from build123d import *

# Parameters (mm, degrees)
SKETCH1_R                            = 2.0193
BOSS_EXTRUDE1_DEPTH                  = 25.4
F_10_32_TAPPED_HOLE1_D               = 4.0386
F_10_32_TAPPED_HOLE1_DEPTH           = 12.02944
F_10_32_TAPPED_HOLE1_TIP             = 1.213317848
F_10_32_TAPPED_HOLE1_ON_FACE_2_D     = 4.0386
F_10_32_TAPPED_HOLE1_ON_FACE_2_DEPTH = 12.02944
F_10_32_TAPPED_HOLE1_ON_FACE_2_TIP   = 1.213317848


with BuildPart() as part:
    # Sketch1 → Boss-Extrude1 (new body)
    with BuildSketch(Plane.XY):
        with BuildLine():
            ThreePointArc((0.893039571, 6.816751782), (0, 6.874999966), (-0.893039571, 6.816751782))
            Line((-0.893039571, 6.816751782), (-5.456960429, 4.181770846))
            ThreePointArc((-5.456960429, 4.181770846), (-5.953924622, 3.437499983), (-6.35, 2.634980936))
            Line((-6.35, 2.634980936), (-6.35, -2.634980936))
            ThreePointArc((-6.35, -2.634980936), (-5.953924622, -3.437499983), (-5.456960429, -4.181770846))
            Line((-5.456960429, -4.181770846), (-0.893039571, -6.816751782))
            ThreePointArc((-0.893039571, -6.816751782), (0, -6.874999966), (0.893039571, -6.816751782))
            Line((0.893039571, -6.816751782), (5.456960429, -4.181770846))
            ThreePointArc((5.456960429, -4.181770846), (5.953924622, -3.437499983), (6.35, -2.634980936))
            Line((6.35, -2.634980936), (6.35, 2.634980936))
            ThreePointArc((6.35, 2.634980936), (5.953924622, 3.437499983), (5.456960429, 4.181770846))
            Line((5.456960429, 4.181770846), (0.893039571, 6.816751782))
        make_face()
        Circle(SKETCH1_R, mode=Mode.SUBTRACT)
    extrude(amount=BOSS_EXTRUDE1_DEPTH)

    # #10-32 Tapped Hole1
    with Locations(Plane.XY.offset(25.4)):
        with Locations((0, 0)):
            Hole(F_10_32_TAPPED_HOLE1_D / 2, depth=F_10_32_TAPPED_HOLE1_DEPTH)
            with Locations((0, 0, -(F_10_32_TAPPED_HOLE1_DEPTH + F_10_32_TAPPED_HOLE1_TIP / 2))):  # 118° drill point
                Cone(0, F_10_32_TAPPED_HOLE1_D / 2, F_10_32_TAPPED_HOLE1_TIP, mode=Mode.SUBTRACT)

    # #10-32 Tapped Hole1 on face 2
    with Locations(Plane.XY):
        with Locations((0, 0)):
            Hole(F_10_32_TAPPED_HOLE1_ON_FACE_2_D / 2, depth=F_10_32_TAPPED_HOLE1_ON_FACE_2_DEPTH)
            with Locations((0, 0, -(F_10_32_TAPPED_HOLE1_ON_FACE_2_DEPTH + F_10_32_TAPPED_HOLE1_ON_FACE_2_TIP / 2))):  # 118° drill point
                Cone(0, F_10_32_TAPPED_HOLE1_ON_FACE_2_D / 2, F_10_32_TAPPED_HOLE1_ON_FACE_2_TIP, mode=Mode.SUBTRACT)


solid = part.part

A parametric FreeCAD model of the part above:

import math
import FreeCAD as App
import Part
import Sketcher

V = App.Vector
Q = App.Units.Quantity

doc = App.newDocument("Part")
body = doc.addObject("PartDesign::Body", "Body")

# Sketch on XY plane
sketch1 = body.newObject("Sketcher::SketchObject", "Sketch")
sketch1.AttachmentSupport = (doc.getObject("XY_Plane"), [""])
sketch1.MapMode = "FlatFace"
sketch1.addGeometry(Part.ArcOfCircle(Part.Circle(V(0, 0, 0), V(0, 0, 1), 6.9), math.radians(82.54), math.radians(97.46)), False)
sketch1.addGeometry(Part.LineSegment(V(-0.9, 6.8, 0), V(-5.5, 4.2, 0)), False)
sketch1.addGeometry(Part.ArcOfCircle(Part.Circle(V(0, 0, 0), V(0, 0, 1), 6.9), math.radians(142.54), math.radians(157.46)), False)
sketch1.addGeometry(Part.LineSegment(V(-6.3, 2.6, 0), V(-6.3, -2.6, 0)), False)
sketch1.addGeometry(Part.ArcOfCircle(Part.Circle(V(0, 0, 0), V(0, 0, 1), 6.9), math.radians(-157.46), math.radians(-142.54)), False)
sketch1.addGeometry(Part.LineSegment(V(-5.5, -4.2, 0), V(-0.9, -6.8, 0)), False)
sketch1.addGeometry(Part.ArcOfCircle(Part.Circle(V(0, 0, 0), V(0, 0, 1), 6.9), math.radians(-97.46), math.radians(-82.54)), False)
sketch1.addGeometry(Part.LineSegment(V(0.9, -6.8, 0), V(5.5, -4.2, 0)), False)
sketch1.addGeometry(Part.ArcOfCircle(Part.Circle(V(0, 0, 0), V(0, 0, 1), 6.9), math.radians(-37.46), math.radians(-22.54)), False)
sketch1.addGeometry(Part.LineSegment(V(6.3, -2.6, 0), V(6.3, 2.6, 0)), False)
sketch1.addGeometry(Part.ArcOfCircle(Part.Circle(V(0, 0, 0), V(0, 0, 1), 6.9), math.radians(22.54), math.radians(37.46)), False)
sketch1.addGeometry(Part.LineSegment(V(5.5, 4.2, 0), V(0.9, 6.8, 0)), False)
sketch1.addGeometry(Part.Circle(V(0, 0, 0), V(0, 0, 1), 2), False)
sketch1.addConstraint(Sketcher.Constraint("Coincident", 0, 2, 1, 1))
sketch1.addConstraint(Sketcher.Constraint("Coincident", 1, 2, 2, 1))
sketch1.addConstraint(Sketcher.Constraint("Coincident", 2, 2, 3, 1))
sketch1.addConstraint(Sketcher.Constraint("Coincident", 3, 2, 4, 1))
sketch1.addConstraint(Sketcher.Constraint("Coincident", 4, 2, 5, 1))
sketch1.addConstraint(Sketcher.Constraint("Coincident", 5, 2, 6, 1))
sketch1.addConstraint(Sketcher.Constraint("Coincident", 6, 2, 7, 1))
sketch1.addConstraint(Sketcher.Constraint("Coincident", 7, 2, 8, 1))
sketch1.addConstraint(Sketcher.Constraint("Coincident", 8, 2, 9, 1))
sketch1.addConstraint(Sketcher.Constraint("Coincident", 9, 2, 10, 1))
sketch1.addConstraint(Sketcher.Constraint("Coincident", 10, 2, 11, 1))
sketch1.addConstraint(Sketcher.Constraint("Coincident", 11, 2, 0, 1))
sketch1.addConstraint(Sketcher.Constraint("Vertical", 3))
sketch1.addConstraint(Sketcher.Constraint("Vertical", 9))
sketch1.addConstraint(Sketcher.Constraint("Coincident", 0, 3, -1, 1))
sketch1.addConstraint(Sketcher.Constraint("Coincident", 2, 3, -1, 1))
sketch1.addConstraint(Sketcher.Constraint("Coincident", 4, 3, -1, 1))
sketch1.addConstraint(Sketcher.Constraint("Coincident", 6, 3, -1, 1))
sketch1.addConstraint(Sketcher.Constraint("Coincident", 8, 3, -1, 1))
sketch1.addConstraint(Sketcher.Constraint("Coincident", 10, 3, -1, 1))
sketch1.addConstraint(Sketcher.Constraint("Coincident", 12, 3, -1, 1))
sketch1.addConstraint(Sketcher.Constraint("Equal", 0, 2))
sketch1.addConstraint(Sketcher.Constraint("Equal", 2, 4))
sketch1.addConstraint(Sketcher.Constraint("Equal", 4, 6))
sketch1.addConstraint(Sketcher.Constraint("Equal", 6, 8))
sketch1.addConstraint(Sketcher.Constraint("Equal", 8, 10))
sketch1.addConstraint(Sketcher.Constraint("Parallel", 1, 7))
sketch1.addConstraint(Sketcher.Constraint("Parallel", 5, 11))
sketch1.addConstraint(Sketcher.Constraint("Horizontal", 5, 2, 6, 2))
sketch1.addConstraint(Sketcher.Constraint("Horizontal", 4, 2, 7, 2))
sketch1.addConstraint(Sketcher.Constraint("Horizontal", 3, 2, 8, 2))
sketch1.addConstraint(Sketcher.Constraint("Horizontal", 1, 2, 10, 2))
sketch1.addConstraint(Sketcher.Constraint("Vertical", 1, 2, 4, 2))
sketch1.addConstraint(Sketcher.Constraint("Diameter", 12, Q("0.159 in")))
sketch1.addConstraint(Sketcher.Constraint("Angle", 1, Q("-150 deg")))
sketch1.addConstraint(Sketcher.Constraint("DistanceX", 2, 2, -1, 1, Q("0.25 in")))
sketch1.addConstraint(Sketcher.Constraint("Radius", 0, 6.875))
sketch1.addConstraint(Sketcher.Constraint("DistanceX", 0, 2, 10, 2, Q("0.25 in")))
pad1 = body.newObject("PartDesign::Pad", "Pad")
pad1.Profile = sketch1
pad1.Length = Q("1 in")

# Sketch on XY plane
sketch2 = body.newObject("Sketcher::SketchObject", "Sketch001")
sketch2.AttachmentSupport = (doc.getObject("XY_Plane"), [""])
sketch2.MapMode = "FlatFace"
sketch2.AttachmentOffset = App.Placement(V(0, 0, 1 * 25.4), App.Rotation())
sketch2.addGeometry(Part.Circle(V(0, 0, 0), V(0, 0, 1), 2), False)
sketch2.addConstraint(Sketcher.Constraint("Coincident", 0, 3, -1, 1))
sketch2.addConstraint(Sketcher.Constraint("Diameter", 0, Q("0.159 in")))
doc.recompute()
hole = body.newObject("PartDesign::Hole", "Hole")
hole.Profile = sketch2
hole.ThreadType = "None"
hole.Diameter = Q("0.159 in")
hole.DepthType = "Dimension"
hole.Depth = Q("0.4736 in")
hole.DrillPoint = "Angled"
hole.DrillPointAngle = 118

# Sketch on XY plane
sketch3 = body.newObject("Sketcher::SketchObject", "Sketch002")
sketch3.AttachmentSupport = (doc.getObject("XY_Plane"), [""])
sketch3.MapMode = "FlatFace"
sketch3.addGeometry(Part.Circle(V(0, 0, 0), V(0, 0, 1), 2), False)
sketch3.addConstraint(Sketcher.Constraint("Coincident", 0, 3, -1, 1))
sketch3.addConstraint(Sketcher.Constraint("Diameter", 0, Q("0.159 in")))
doc.recompute()
hole2 = body.newObject("PartDesign::Hole", "Hole001")
hole2.Profile = sketch3
hole2.ThreadType = "None"
hole2.Diameter = Q("0.159 in")
hole2.DepthType = "Dimension"
hole2.Depth = Q("0.4736 in")
hole2.DrillPoint = "Angled"
hole2.DrillPointAngle = 118

doc.recompute()
